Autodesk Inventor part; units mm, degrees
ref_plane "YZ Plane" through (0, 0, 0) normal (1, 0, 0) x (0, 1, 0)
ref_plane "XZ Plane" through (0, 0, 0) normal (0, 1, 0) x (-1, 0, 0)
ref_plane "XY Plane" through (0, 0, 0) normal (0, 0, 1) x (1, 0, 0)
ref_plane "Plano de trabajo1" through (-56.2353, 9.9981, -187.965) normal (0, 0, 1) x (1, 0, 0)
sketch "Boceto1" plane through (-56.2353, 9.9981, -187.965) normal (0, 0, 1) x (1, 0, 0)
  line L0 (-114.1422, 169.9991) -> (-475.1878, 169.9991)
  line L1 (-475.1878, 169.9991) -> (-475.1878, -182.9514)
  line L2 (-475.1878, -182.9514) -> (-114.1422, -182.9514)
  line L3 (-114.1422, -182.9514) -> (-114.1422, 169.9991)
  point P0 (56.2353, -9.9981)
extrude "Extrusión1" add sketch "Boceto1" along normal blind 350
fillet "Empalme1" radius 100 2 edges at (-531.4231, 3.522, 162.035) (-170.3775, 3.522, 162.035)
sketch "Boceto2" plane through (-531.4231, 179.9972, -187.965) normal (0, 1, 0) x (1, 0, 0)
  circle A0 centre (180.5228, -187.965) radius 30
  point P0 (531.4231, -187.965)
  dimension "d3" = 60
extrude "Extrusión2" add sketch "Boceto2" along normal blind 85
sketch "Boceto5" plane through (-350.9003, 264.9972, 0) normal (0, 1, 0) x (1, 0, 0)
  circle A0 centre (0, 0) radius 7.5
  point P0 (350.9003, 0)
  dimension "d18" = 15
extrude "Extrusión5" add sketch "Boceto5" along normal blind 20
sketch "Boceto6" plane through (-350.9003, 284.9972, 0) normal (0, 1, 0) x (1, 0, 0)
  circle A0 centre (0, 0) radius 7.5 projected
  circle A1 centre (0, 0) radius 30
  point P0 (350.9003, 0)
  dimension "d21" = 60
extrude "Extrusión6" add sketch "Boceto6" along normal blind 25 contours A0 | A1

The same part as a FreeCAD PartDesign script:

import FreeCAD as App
import Part
import Sketcher

V = App.Vector


def edges_at(feature, points):
    """Names of the edges that pass closest to the given points."""
    edges = feature.Shape.Edges
    near = lambda p: min(range(len(edges)), key=lambda i: edges[i].distToShape(Part.Vertex(*p))[0])
    return sorted({f"Edge{near(p) + 1}" for p in points})

doc = App.newDocument("Part")
body = doc.addObject("PartDesign::Body", "Body")

# Sketch on XY plane
sketch1 = body.newObject("Sketcher::SketchObject", "Sketch")
sketch1.AttachmentSupport = (doc.getObject("XY_Plane"), [""])
sketch1.MapMode = "FlatFace"
sketch1.AttachmentOffset = App.Placement(V(0, 0, -187.965), App.Rotation())
sketch1.addGeometry(Part.LineSegment(V(-170, -173, 0), V(-170, 180, 0)), False)
sketch1.addGeometry(Part.LineSegment(V(-170, 180, 0), V(-531, 180, 0)), False)
sketch1.addGeometry(Part.LineSegment(V(-531, 180, 0), V(-531, -173, 0)), False)
sketch1.addGeometry(Part.LineSegment(V(-531, -173, 0), V(-170, -173, 0)), False)
sketch1.addConstraint(Sketcher.Constraint("Coincident", 0, 2, 1, 1))
sketch1.addConstraint(Sketcher.Constraint("Coincident", 1, 2, 2, 1))
sketch1.addConstraint(Sketcher.Constraint("Coincident", 2, 2, 3, 1))
sketch1.addConstraint(Sketcher.Constraint("Coincident", 3, 2, 0, 1))
sketch1.addConstraint(Sketcher.Constraint("Vertical", 0))
sketch1.addConstraint(Sketcher.Constraint("Horizontal", 1))
sketch1.addConstraint(Sketcher.Constraint("Vertical", 2))
sketch1.addConstraint(Sketcher.Constraint("Horizontal", 3))
sketch1.addConstraint(Sketcher.Constraint("DistanceX", 1, 2, 1, 1, 361.0456))
sketch1.addConstraint(Sketcher.Constraint("DistanceY", 0, 1, 0, 2, 352.9505))
sketch1.addConstraint(Sketcher.Constraint("DistanceX", 1, 2, -1, 1, 531.423))
sketch1.addConstraint(Sketcher.Constraint("DistanceY", -1, 1, 0, 2, 179.9972))
pad1 = body.newObject("PartDesign::Pad", "Pad")
pad1.Profile = sketch1
pad1.Length = 350
doc.recompute()

fillet = body.newObject("PartDesign::Fillet", "Fillet")
fillet.Base = (pad1, edges_at(pad1, [(-531.423, 3.522, 162.035), (-170.377, 3.522, 162.035)]))
fillet.Radius = 100

# Sketch on XZ plane
sketch2 = body.newObject("Sketcher::SketchObject", "Sketch001")
sketch2.AttachmentSupport = (doc.getObject("XZ_Plane"), [""])
sketch2.MapMode = "FlatFace"
sketch2.AttachmentOffset = App.Placement(V(0, 0, -179.9972), App.Rotation())
sketch2.addGeometry(Part.Circle(V(-351, 0, 0), V(0, 0, 1), 30), False)
sketch2.addConstraint(Sketcher.Constraint("PointOnObject", 0, 3, -1))
sketch2.addConstraint(Sketcher.Constraint("Diameter", 0, 60.0))
sketch2.addConstraint(Sketcher.Constraint("DistanceX", 0, 3, -1, 1, 350.9003))
pad2 = body.newObject("PartDesign::Pad", "Pad001")
pad2.Profile = sketch2
pad2.Length = 85
pad2.Reversed = True

# Sketch on XZ plane
sketch3 = body.newObject("Sketcher::SketchObject", "Sketch002")
sketch3.AttachmentSupport = (doc.getObject("XZ_Plane"), [""])
sketch3.MapMode = "FlatFace"
sketch3.AttachmentOffset = App.Placement(V(0, 0, -264.9972), App.Rotation())
sketch3.addGeometry(Part.Circle(V(-351, 0, 0), V(0, 0, 1), 8), False)
sketch3.addConstraint(Sketcher.Constraint("PointOnObject", 0, 3, -1))
sketch3.addConstraint(Sketcher.Constraint("Diameter", 0, 15.0))
sketch3.addConstraint(Sketcher.Constraint("DistanceX", 0, 3, -1, 1, 350.9003))
pad3 = body.newObject("PartDesign::Pad", "Pad002")
pad3.Profile = sketch3
pad3.Length = 20
pad3.Reversed = True

# Sketch on XZ plane
sketch4 = body.newObject("Sketcher::SketchObject", "Sketch003")
sketch4.AttachmentSupport = (doc.getObject("XZ_Plane"), [""])
sketch4.MapMode = "FlatFace"
sketch4.AttachmentOffset = App.Placement(V(0, 0, -284.9972), App.Rotation())
sketch4.addGeometry(Part.Circle(V(-351, 0, 0), V(0, 0, 1), 30), False)
sketch4.addConstraint(Sketcher.Constraint("PointOnObject", 0, 3, -1))
sketch4.addConstraint(Sketcher.Constraint("Diameter", 0, 60.0))
sketch4.addConstraint(Sketcher.Constraint("DistanceX", 0, 3, -1, 1, 350.9003))
pad4 = body.newObject("PartDesign::Pad", "Pad003")
pad4.Profile = sketch4
pad4.Length = 25
pad4.Reversed = True

doc.recompute()
